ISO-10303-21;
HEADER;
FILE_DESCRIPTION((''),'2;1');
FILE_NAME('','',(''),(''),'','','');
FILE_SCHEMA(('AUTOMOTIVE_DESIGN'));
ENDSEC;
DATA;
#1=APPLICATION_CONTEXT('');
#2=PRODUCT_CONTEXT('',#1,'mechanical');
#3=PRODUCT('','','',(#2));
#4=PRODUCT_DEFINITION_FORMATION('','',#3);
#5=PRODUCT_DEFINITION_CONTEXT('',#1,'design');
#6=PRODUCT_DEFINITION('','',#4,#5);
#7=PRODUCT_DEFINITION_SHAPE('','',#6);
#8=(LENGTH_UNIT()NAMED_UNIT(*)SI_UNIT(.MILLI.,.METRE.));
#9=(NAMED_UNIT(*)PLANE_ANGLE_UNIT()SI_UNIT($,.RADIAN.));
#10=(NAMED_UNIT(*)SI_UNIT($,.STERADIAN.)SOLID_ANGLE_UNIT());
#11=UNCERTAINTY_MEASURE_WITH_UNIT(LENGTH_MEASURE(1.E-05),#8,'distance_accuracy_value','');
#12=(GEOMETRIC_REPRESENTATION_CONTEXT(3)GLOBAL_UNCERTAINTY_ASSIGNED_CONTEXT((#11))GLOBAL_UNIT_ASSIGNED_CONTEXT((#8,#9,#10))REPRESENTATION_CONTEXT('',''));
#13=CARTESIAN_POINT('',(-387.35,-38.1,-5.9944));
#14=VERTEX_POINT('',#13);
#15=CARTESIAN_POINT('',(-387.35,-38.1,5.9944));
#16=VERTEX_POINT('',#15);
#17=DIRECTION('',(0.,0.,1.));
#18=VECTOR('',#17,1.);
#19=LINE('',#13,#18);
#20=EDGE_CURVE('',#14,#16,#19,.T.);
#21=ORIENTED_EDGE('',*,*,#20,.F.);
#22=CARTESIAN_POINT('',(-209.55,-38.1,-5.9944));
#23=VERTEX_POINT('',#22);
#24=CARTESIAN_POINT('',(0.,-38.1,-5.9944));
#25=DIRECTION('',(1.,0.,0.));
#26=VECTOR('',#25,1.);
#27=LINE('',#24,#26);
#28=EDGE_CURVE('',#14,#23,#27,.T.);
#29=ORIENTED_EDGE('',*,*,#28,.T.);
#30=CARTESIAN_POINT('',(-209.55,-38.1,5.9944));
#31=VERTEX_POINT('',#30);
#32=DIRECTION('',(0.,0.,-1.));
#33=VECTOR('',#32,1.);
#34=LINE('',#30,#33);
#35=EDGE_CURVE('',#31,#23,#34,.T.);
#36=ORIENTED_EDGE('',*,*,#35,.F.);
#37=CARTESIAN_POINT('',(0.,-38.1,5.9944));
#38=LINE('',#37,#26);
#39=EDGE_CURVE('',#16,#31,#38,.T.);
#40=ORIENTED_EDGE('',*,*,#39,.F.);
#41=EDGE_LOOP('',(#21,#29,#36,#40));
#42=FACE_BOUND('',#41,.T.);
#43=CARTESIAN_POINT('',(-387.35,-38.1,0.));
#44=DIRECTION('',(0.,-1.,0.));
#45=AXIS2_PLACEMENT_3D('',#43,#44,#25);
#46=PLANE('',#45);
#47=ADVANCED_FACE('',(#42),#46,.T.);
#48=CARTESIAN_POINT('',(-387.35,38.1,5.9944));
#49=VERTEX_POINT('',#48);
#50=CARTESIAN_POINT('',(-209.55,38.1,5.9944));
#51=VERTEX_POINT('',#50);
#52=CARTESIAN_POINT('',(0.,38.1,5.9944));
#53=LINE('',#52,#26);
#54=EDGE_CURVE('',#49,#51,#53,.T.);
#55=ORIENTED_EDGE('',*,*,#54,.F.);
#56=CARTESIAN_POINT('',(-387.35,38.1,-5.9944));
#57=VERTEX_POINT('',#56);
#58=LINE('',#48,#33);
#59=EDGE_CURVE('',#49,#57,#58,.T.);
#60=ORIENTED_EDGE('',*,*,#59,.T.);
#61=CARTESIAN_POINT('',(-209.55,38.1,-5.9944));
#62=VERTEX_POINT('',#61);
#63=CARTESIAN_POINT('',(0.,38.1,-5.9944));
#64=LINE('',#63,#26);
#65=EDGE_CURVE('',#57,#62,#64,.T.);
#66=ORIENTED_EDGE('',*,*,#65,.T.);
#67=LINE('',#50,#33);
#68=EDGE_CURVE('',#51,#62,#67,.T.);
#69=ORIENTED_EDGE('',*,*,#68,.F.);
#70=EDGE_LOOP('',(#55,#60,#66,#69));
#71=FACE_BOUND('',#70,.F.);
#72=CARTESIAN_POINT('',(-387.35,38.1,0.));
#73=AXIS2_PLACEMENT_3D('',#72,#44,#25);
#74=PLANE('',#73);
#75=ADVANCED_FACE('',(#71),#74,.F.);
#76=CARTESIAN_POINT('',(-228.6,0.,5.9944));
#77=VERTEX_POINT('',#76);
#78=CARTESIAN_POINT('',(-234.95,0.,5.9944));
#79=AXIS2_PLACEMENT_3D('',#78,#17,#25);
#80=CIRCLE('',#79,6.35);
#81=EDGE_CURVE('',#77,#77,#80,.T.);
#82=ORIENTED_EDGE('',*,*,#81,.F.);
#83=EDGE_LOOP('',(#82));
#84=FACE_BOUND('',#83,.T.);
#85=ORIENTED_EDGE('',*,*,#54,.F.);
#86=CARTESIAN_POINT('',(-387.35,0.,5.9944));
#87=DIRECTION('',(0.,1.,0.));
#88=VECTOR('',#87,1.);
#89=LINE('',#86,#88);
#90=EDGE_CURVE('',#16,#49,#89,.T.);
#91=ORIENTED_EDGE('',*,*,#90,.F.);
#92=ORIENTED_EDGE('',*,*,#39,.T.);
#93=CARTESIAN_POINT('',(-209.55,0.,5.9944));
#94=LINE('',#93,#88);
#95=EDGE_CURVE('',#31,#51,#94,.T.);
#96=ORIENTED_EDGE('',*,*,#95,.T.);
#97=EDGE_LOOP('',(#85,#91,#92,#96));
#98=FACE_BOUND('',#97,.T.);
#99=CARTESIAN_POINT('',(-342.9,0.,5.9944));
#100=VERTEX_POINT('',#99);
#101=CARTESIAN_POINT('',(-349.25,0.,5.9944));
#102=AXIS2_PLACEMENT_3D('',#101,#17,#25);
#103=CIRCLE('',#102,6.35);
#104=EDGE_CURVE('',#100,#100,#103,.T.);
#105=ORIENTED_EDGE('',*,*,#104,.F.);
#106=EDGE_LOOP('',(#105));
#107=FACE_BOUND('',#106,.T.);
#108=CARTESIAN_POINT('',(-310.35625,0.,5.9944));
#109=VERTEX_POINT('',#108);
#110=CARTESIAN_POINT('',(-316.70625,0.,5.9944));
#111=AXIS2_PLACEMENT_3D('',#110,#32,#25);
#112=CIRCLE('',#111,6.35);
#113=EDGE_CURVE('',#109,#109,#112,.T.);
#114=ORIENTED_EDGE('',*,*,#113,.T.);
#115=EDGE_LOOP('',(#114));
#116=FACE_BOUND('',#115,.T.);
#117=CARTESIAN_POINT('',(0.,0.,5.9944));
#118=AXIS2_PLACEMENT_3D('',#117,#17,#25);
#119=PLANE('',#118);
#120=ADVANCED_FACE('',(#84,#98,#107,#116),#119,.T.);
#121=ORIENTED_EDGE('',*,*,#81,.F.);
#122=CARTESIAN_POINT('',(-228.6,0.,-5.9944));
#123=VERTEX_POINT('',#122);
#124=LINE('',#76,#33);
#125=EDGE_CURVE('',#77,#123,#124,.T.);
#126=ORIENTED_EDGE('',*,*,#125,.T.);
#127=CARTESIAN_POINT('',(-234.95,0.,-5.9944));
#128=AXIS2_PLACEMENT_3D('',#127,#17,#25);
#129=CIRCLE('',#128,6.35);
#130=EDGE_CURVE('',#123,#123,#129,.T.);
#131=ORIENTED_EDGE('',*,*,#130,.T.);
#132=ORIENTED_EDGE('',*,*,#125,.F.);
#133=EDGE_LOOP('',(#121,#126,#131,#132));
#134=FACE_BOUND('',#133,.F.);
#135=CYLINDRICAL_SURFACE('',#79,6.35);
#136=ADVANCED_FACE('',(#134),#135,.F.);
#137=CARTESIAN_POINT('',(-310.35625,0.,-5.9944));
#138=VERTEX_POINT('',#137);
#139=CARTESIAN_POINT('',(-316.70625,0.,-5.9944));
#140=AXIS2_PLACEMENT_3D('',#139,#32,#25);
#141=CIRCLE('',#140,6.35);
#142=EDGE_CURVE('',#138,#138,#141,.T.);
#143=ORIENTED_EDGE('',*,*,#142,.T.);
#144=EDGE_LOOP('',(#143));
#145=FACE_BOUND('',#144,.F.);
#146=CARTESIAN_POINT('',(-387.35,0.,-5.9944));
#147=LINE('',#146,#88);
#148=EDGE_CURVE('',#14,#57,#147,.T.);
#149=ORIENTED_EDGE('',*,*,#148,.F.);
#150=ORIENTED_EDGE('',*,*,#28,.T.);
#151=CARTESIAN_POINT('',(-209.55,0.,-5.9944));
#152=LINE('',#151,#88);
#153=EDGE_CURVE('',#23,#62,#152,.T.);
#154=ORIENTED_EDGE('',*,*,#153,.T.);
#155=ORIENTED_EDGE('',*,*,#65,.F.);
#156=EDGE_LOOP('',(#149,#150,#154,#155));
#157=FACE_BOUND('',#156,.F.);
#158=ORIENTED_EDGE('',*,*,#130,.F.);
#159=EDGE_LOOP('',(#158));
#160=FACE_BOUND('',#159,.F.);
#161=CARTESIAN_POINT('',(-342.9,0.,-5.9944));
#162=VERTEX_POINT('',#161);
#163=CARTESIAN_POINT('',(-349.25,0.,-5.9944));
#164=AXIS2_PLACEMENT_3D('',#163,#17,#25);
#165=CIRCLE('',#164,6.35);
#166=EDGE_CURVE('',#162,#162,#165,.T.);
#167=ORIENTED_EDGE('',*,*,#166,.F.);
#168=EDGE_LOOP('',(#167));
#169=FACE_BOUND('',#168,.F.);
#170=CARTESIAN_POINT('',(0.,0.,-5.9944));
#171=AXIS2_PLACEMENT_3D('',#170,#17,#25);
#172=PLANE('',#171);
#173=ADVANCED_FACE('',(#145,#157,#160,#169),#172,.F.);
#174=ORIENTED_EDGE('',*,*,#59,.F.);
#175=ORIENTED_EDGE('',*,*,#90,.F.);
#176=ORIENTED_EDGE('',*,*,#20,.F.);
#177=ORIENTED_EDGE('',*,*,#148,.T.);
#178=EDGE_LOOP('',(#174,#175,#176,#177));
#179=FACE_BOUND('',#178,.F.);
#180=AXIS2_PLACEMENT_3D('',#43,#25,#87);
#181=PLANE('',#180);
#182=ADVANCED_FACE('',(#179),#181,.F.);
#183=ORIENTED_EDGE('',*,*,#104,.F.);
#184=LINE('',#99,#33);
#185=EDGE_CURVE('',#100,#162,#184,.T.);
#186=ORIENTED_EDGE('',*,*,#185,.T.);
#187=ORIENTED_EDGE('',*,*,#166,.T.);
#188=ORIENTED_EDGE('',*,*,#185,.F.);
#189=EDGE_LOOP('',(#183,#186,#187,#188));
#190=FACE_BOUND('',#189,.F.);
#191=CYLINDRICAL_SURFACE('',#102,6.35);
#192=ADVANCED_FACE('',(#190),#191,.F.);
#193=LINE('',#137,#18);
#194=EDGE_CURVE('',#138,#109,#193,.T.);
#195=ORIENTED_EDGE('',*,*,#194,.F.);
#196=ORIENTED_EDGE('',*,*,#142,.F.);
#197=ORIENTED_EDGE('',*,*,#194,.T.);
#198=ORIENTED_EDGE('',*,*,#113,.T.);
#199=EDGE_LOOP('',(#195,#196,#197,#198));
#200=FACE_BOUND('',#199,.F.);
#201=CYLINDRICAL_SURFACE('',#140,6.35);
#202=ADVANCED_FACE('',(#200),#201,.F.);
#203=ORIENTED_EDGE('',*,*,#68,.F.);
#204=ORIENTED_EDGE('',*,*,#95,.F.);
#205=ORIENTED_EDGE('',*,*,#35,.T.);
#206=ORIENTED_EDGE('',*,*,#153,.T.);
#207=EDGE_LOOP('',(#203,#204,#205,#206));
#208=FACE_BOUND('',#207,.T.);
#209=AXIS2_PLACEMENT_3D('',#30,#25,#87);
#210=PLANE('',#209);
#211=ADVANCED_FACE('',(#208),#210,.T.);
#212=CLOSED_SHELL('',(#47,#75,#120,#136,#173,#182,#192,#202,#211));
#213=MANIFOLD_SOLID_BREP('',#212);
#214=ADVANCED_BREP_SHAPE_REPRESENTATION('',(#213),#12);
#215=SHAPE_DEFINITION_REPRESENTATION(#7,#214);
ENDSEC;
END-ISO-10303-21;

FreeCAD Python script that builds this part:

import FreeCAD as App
import Part
import Sketcher
Q = App.Units.Quantity

doc = App.newDocument("Part")
body = doc.addObject("PartDesign::Body", "Body")

# Sketch on XY plane
sketch1 = doc.addObject("Sketcher::SketchObject", "Sketch")
body.addObject(sketch1)
sketch1.AttachmentSupport = (doc.XY_Plane, [""])
sketch1.MapMode = "FlatFace"
sketch1.addGeometry([
    Part.LineSegment(App.Vector(-387, 38, 0), App.Vector(-387, -38, 0)),
    Part.LineSegment(App.Vector(-387, -38, 0), App.Vector(387, -38, 0)),
    Part.LineSegment(App.Vector(387, -38, 0), App.Vector(387, 38, 0)),
    Part.LineSegment(App.Vector(387, 38, 0), App.Vector(-387, 38, 0)),
], False)
sketch1.addConstraint([
    Sketcher.Constraint("Coincident", 0, 2, 1, 1),
    Sketcher.Constraint("Coincident", 1, 2, 2, 1),
    Sketcher.Constraint("Coincident", 2, 2, 3, 1),
    Sketcher.Constraint("Coincident", 3, 2, 0, 1),
    Sketcher.Constraint("Vertical", 0),
    Sketcher.Constraint("Horizontal", 1),
    Sketcher.Constraint("Vertical", 2),
    Sketcher.Constraint("Horizontal", 3),
    Sketcher.Constraint("Symmetric", 0, 2, 2, 2, -1, 1),
    Sketcher.Constraint("DistanceY", 0, 2, 0, 1, Q("3 in")),
    Sketcher.Constraint("DistanceX", 1, 1, 1, 2, Q("30.5 in")),
])
pad1 = doc.addObject("PartDesign::Pad", "Pad")
body.addObject(pad1)
pad1.Profile = sketch1
pad1.Length = Q("0.472 in")
pad1.Midplane = True

# Sketch on XY plane
sketch2 = doc.addObject("Sketcher::SketchObject", "Sketch001")
body.addObject(sketch2)
sketch2.AttachmentSupport = (doc.XY_Plane, [""])
sketch2.MapMode = "FlatFace"
sketch2.AttachmentOffset = App.Placement(App.Vector(0, 0, -0.236 * 25.4), App.Rotation())
sketch2.addGeometry([
    Part.Circle(App.Vector(-317, 0, 0), App.Vector(0, 0, 1), 6),
    Part.Circle(App.Vector(324, 0, 0), App.Vector(0, 0, 1), 6),
], False)
sketch2.addConstraint([
    Sketcher.Constraint("Equal", 0, 1),
    Sketcher.Constraint("PointOnObject", 0, 3, -1),
    Sketcher.Constraint("PointOnObject", 1, 3, -1),
    Sketcher.Constraint("Diameter", 0, Q("0.5 in")),
    Sketcher.Constraint("DistanceX", -1, 1, 1, 3, Q("12.75 in")),
    Sketcher.Constraint("DistanceX", 0, 3, -1, 1, Q("12.46875 in")),
])
pocket1 = doc.addObject("PartDesign::Pocket", "Pocket")
body.addObject(pocket1)
pocket1.Profile = sketch2
pocket1.Type = "ThroughAll"
pocket1.Reversed = True

# Sketch on XY plane
sketch3 = doc.addObject("Sketcher::SketchObject", "Sketch002")
body.addObject(sketch3)
sketch3.AttachmentSupport = (doc.XY_Plane, [""])
sketch3.MapMode = "FlatFace"
sketch3.AttachmentOffset = App.Placement(App.Vector(0, 0, 0.236 * 25.4), App.Rotation())
sketch3.addGeometry([
    Part.Circle(App.Vector(-349, 0, 0), App.Vector(0, 0, 1), 6),
    Part.Circle(App.Vector(-235, 0, 0), App.Vector(0, 0, 1), 6),
], False)
sketch3.addConstraint([
    Sketcher.Constraint("Equal", 0, 1),
    Sketcher.Constraint("PointOnObject", 0, 3, -1),
    Sketcher.Constraint("PointOnObject", 1, 3, -1),
    Sketcher.Constraint("Diameter", 0, Q("0.5 in")),
    Sketcher.Constraint("DistanceX", 0, 3, 1, 3, Q("4.5 in")),
    Sketcher.Constraint("DistanceX", 0, 3, -1, 1, Q("13.75 in")),
])
pocket2 = doc.addObject("PartDesign::Pocket", "Pocket001")
body.addObject(pocket2)
pocket2.Profile = sketch3
pocket2.Type = "ThroughAll"

# Sketch on XY plane
sketch4 = doc.addObject("Sketcher::SketchObject", "Sketch003")
body.addObject(sketch4)
sketch4.AttachmentSupport = (doc.XY_Plane, [""])
sketch4.MapMode = "FlatFace"
sketch4.AttachmentOffset = App.Placement(App.Vector(0, 0, 0.236 * 25.4), App.Rotation())
sketch4.addGeometry([
    Part.LineSegment(App.Vector(-210, 38, 0), App.Vector(-210, -38, 0)),
    Part.LineSegment(App.Vector(-210, -38, 0), App.Vector(387, -38, 0)),
    Part.LineSegment(App.Vector(387, -38, 0), App.Vector(387, 38, 0)),
    Part.LineSegment(App.Vector(387, 38, 0), App.Vector(-210, 38, 0)),
], False)
sketch4.addConstraint([
    Sketcher.Constraint("Coincident", 0, 2, 1, 1),
    Sketcher.Constraint("Coincident", 1, 2, 2, 1),
    Sketcher.Constraint("Coincident", 2, 2, 3, 1),
    Sketcher.Constraint("Coincident", 3, 2, 0, 1),
    Sketcher.Constraint("Vertical", 0),
    Sketcher.Constraint("Horizontal", 1),
    Sketcher.Constraint("Vertical", 2),
    Sketcher.Constraint("Horizontal", 3),
    Sketcher.Constraint("DistanceY", 0, 2, 0, 1, Q("3 in")),
    Sketcher.Constraint("DistanceX", 1, 1, 1, 2, Q("23.5 in")),
    Sketcher.Constraint("DistanceY", 0, 2, -1, 1, Q("1.5 in")),
    Sketcher.Constraint("DistanceX", 0, 2, -1, 1, Q("8.25 in")),
])
pocket3 = doc.addObject("PartDesign::Pocket", "Pocket002")
body.addObject(pocket3)
pocket3.Profile = sketch4
pocket3.Type = "ThroughAll"

doc.recompute()
